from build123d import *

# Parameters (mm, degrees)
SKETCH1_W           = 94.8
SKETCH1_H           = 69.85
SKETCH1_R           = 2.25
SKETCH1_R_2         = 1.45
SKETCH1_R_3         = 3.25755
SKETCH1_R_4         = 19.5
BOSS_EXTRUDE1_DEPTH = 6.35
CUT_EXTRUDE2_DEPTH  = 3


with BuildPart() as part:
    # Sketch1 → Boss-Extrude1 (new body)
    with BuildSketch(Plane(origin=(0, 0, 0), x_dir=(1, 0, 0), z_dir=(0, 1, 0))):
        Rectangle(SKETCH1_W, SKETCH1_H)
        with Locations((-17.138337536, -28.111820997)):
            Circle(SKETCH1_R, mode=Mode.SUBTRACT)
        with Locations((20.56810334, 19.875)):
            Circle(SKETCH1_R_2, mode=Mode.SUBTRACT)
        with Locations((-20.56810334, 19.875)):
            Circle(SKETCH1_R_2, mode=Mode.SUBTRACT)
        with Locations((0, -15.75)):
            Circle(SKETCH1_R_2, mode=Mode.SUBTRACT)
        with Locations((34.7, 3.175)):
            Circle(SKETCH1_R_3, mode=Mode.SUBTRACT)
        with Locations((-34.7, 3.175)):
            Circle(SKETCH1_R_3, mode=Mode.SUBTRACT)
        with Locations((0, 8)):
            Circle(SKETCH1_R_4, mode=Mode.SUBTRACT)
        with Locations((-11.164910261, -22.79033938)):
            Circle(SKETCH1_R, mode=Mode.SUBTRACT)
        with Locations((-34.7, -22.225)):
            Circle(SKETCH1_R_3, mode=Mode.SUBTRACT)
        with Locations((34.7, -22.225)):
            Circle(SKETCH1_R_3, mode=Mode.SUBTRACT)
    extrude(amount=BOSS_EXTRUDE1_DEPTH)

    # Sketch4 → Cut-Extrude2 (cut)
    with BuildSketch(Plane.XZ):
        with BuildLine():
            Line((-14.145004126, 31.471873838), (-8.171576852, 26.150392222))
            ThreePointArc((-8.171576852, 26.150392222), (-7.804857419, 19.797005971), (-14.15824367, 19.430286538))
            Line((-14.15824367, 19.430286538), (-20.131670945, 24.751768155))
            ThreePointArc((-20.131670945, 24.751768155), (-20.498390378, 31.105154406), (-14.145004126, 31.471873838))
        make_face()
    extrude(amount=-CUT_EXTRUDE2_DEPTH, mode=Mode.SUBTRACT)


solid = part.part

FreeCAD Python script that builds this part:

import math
import FreeCAD as App
import Part
import Sketcher
from FreeCAD import Vector

doc = App.newDocument("Part")
body = doc.addObject("PartDesign::Body", "Body")

# Sketch on XZ plane
sketch1 = body.newObject("Sketcher::SketchObject", "Sketch")
sketch1.AttachmentSupport = (doc.getObject("XZ_Plane"), [""])
sketch1.MapMode = "FlatFace"
sketch1.addGeometry([
    Part.LineSegment(Vector(-47.4, -34.9, 0), Vector(-47.4, 34.9, 0)),  # 0
    Part.LineSegment(Vector(-47.4, 34.9, 0), Vector(47.4, 34.9, 0)),  # 1
    Part.LineSegment(Vector(47.4, 34.9, 0), Vector(47.4, -34.9, 0)),  # 2
    Part.LineSegment(Vector(47.4, -34.9, 0), Vector(-47.4, -34.9, 0)),  # 3
    Part.Circle(Vector(-34.7, 22.2, 0), Vector(0, 0, 1), 3.3),  # 4
    Part.Circle(Vector(-17.1, 28.1, 0), Vector(0, 0, 1), 2.2),  # 5
    Part.Circle(Vector(-11.2, 22.8, 0), Vector(0, 0, 1), 2.2),  # 6
    Part.Circle(Vector(34.7, 22.2, 0), Vector(0, 0, 1), 3.3),  # 7
    Part.Circle(Vector(0, 15.8, 0), Vector(0, 0, 1), 1.4),  # 8
    Part.Circle(Vector(-34.7, -3.2, 0), Vector(0, 0, 1), 3.3),  # 9
    Part.Circle(Vector(-20.6, -19.9, 0), Vector(0, 0, 1), 1.4),  # 10
    Part.Circle(Vector(0, -8, 0), Vector(0, 0, 1), 19.5),  # 11
    Part.Circle(Vector(34.7, -3.2, 0), Vector(0, 0, 1), 3.3),  # 12
    Part.Circle(Vector(20.6, -19.9, 0), Vector(0, 0, 1), 1.4),  # 13
], False)
sketch1.addConstraint([
    Sketcher.Constraint("Coincident", 0, 2, 1, 1),
    Sketcher.Constraint("Coincident", 1, 2, 2, 1),
    Sketcher.Constraint("Coincident", 2, 2, 3, 1),
    Sketcher.Constraint("Coincident", 3, 2, 0, 1),
    Sketcher.Constraint("Vertical", 0),
    Sketcher.Constraint("Horizontal", 1),
    Sketcher.Constraint("Vertical", 2),
    Sketcher.Constraint("Horizontal", 3),
    Sketcher.Constraint("Equal", 5, 6),
    Sketcher.Constraint("Equal", 4, 7),
    Sketcher.Constraint("Equal", 7, 9),
    Sketcher.Constraint("Equal", 8, 10),
    Sketcher.Constraint("Equal", 9, 12),
    Sketcher.Constraint("Equal", 10, 13),
    Sketcher.Constraint("Symmetric", 0, 2, 2, 2, -1, 1),
    Sketcher.Constraint("Symmetric", 4, 3, 7, 3, -2),
    Sketcher.Constraint("Symmetric", 9, 3, 12, 3, -2),
    Sketcher.Constraint("Symmetric", 10, 3, 13, 3, -2),
    Sketcher.Constraint("PointOnObject", 8, 3, -2),
    Sketcher.Constraint("PointOnObject", 11, 3, -2),
    Sketcher.Constraint("Vertical", 4, 3, 9, 3),
    Sketcher.Constraint("Diameter", 11, 39.0),
    Sketcher.Constraint("Diameter", 5, 4.5),
    Sketcher.Constraint("Diameter", 8, 2.9),
    Sketcher.Constraint("DistanceX", 1, 1, 1, 2, 94.8),
    Sketcher.Constraint("DistanceY", 11, 3, -1, 1, 8.0),
    Sketcher.Constraint("Diameter", 4, 6.5151),
    Sketcher.Constraint("DistanceY", 0, 1, 0, 2, 69.85),
    Sketcher.Constraint("DistanceX", 4, 3, -1, 1, 34.7),
    Sketcher.Constraint("DistanceY", 9, 3, 4, 3, 25.4),
    Sketcher.Constraint("DistanceY", 10, 3, 9, 3, 16.7),
    Sketcher.Constraint("DistanceY", 4, 3, 0, 2, 12.7),
    Sketcher.Constraint("DistanceY", -1, 1, 8, 3, 15.75),
    Sketcher.Constraint("DistanceY", -1, 1, 5, 3, 28.111821),
    Sketcher.Constraint("DistanceX", 6, 3, -1, 1, 11.16491),
    Sketcher.Constraint("DistanceY", -1, 1, 6, 3, 22.790339),
    Sketcher.Constraint("DistanceX", 5, 3, -1, 1, 17.138338),
    Sketcher.Constraint("DistanceX", 10, 3, -1, 1, 20.568103),
])
pad1 = body.newObject("PartDesign::Pad", "Pad")
pad1.Profile = sketch1
pad1.Length = 6.35
pad1.Reversed = True

# Sketch on XZ plane
sketch2 = body.newObject("Sketcher::SketchObject", "Sketch001")
sketch2.AttachmentSupport = (doc.getObject("XZ_Plane"), [""])
sketch2.MapMode = "FlatFace"
sketch2.addGeometry([
    Part.LineSegment(Vector(-8.2, 26.2, 0), Vector(-14.1, 31.5, 0)),
    Part.ArcOfCircle(Part.Circle(Vector(-17.1, 28.1, 0), Vector(0, 0, 1), 4.5), math.radians(48), math.radians(228)),
    Part.LineSegment(Vector(-20.1, 24.8, 0), Vector(-14.2, 19.4, 0)),
    Part.ArcOfCircle(Part.Circle(Vector(-11.2, 22.8, 0), Vector(0, 0, 1), 4.5), math.radians(-132), math.radians(48)),
], False)
sketch2.addConstraint([
    Sketcher.Constraint("Tangent", 0, 2, 1, 1),
    Sketcher.Constraint("Tangent", 1, 2, 2, 1),
    Sketcher.Constraint("Tangent", 2, 2, 3, 1),
    Sketcher.Constraint("Tangent", 3, 2, 0, 1),
    Sketcher.Constraint("Equal", 1, 3),
    Sketcher.Constraint("Radius", 1, 4.5),
    Sketcher.Constraint("Distance", 0, 8.0),
    Sketcher.Constraint("DistanceY", -1, 1, 1, 3, 28.111821),
    Sketcher.Constraint("DistanceX", 3, 3, -1, 1, 11.16491),
    Sketcher.Constraint("DistanceY", -1, 1, 3, 3, 22.790339),
])
pocket1 = body.newObject("PartDesign::Pocket", "Pocket")
pocket1.Profile = sketch2
pocket1.Length = 3

doc.recompute()
